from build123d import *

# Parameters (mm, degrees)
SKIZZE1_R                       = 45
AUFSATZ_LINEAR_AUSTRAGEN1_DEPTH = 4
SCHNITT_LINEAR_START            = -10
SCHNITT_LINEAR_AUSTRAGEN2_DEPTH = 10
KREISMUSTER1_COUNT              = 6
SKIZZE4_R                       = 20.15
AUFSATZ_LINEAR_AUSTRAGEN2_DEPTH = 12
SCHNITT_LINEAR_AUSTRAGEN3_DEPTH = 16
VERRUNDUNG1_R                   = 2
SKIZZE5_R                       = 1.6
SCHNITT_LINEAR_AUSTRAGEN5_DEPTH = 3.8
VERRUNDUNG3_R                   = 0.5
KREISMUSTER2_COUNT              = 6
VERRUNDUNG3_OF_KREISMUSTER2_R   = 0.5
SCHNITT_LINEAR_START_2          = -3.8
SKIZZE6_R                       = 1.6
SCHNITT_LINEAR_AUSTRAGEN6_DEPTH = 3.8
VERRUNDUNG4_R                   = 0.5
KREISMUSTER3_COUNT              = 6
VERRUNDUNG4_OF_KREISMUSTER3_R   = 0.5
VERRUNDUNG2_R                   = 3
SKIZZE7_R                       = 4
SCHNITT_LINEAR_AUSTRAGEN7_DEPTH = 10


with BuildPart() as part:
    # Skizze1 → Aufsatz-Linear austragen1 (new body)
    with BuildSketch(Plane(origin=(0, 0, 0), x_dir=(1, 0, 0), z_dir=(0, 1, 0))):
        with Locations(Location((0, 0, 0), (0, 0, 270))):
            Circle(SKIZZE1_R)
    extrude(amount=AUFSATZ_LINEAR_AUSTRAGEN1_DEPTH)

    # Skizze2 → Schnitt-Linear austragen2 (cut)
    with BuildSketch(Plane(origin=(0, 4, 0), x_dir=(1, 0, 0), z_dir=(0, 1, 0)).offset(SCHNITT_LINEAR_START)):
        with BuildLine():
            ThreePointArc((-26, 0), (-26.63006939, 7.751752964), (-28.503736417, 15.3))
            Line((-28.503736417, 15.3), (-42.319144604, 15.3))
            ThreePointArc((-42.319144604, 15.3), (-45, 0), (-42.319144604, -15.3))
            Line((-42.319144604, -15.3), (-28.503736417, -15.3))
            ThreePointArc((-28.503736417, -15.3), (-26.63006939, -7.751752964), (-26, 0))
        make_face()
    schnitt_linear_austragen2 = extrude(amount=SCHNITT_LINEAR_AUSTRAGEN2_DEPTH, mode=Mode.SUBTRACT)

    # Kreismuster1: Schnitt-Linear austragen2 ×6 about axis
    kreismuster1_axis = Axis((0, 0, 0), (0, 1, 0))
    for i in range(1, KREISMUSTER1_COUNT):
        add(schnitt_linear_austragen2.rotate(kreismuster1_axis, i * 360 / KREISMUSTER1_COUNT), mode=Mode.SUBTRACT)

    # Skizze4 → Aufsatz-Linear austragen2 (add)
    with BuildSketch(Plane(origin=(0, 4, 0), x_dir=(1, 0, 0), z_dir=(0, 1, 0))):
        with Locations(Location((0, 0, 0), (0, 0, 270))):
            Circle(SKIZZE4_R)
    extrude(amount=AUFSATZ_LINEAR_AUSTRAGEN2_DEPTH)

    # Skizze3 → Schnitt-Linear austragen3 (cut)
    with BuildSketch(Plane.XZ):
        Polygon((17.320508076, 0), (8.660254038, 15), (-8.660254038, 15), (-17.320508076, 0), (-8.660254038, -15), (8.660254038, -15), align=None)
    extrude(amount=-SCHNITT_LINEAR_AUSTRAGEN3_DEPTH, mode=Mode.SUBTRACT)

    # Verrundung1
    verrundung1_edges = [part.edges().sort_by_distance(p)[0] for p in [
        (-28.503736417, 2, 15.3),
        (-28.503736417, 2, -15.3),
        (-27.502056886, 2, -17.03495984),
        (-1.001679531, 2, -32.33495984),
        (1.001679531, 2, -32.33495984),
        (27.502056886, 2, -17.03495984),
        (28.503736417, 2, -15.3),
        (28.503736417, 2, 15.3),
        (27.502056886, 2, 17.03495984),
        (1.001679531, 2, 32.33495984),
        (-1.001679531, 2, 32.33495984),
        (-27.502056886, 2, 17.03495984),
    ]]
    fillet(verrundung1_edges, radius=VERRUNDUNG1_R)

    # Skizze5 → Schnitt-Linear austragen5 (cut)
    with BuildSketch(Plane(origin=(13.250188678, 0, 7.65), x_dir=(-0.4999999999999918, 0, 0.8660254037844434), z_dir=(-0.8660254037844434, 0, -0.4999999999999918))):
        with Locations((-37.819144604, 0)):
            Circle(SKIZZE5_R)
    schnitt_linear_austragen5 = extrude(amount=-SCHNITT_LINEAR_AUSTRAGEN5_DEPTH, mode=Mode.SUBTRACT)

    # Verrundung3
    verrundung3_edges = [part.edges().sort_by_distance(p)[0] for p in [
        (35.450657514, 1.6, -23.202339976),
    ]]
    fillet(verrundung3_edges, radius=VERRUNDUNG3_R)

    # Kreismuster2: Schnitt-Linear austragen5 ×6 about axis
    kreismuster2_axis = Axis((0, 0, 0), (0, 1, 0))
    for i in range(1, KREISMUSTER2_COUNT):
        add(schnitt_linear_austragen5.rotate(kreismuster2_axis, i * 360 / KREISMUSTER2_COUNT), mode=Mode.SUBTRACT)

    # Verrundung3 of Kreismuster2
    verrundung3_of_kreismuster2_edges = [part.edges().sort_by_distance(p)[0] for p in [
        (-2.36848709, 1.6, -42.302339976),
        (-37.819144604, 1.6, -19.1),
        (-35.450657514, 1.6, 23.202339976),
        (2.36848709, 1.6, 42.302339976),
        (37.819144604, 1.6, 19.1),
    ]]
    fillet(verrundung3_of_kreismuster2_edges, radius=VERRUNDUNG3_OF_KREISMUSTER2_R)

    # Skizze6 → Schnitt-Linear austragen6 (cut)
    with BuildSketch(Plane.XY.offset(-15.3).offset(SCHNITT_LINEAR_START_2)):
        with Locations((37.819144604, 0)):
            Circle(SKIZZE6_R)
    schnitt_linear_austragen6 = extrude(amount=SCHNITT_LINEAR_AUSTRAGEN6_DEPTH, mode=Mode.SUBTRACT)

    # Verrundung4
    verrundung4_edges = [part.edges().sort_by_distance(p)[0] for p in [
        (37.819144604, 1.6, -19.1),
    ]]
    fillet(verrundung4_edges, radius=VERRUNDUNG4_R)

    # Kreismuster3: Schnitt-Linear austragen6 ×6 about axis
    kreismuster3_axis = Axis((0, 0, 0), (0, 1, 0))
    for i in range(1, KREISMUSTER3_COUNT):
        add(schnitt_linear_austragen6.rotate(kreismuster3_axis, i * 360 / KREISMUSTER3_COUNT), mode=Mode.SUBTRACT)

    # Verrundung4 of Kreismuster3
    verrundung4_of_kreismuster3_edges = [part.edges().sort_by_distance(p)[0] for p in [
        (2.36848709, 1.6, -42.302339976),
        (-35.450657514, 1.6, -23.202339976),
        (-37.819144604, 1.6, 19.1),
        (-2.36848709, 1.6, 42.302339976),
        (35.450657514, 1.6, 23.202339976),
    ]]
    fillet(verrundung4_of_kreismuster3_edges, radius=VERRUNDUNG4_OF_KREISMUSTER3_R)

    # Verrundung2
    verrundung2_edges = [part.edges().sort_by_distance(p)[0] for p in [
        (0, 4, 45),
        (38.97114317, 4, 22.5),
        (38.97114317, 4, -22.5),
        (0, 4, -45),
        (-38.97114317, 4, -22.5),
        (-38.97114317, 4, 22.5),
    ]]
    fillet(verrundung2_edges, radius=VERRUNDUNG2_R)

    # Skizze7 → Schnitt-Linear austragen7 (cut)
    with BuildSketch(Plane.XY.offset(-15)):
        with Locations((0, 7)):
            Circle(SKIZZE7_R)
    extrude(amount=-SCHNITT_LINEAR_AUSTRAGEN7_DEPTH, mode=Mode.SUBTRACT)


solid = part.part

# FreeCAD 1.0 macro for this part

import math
import FreeCAD as App
import Part
import Sketcher
Q = App.Units.Quantity


def edges_at(feature, points):
    """Names of the edges that pass closest to the given points."""
    edges = feature.Shape.Edges
    near = lambda p: min(range(len(edges)), key=lambda i: edges[i].distToShape(Part.Vertex(*p))[0])
    return sorted({f"Edge{near(p) + 1}" for p in points})

doc = App.newDocument("Part")
body = doc.addObject("PartDesign::Body", "Body")

# Sketch on XZ plane
sketch1 = body.newObject("Sketcher::SketchObject", "Sketch")
sketch1.AttachmentSupport = (doc.getObject("XZ_Plane"), [""])
sketch1.MapMode = "FlatFace"
sketch1.addGeometry(Part.Circle(App.Vector(0, 0, 0), App.Vector(0, 0, 1), 45), False)
sketch1.addConstraint(Sketcher.Constraint("Coincident", 0, 3, -1, 1))
sketch1.addConstraint(Sketcher.Constraint("Diameter", 0, 90.0))
pad1 = body.newObject("PartDesign::Pad", "Pad")
pad1.Profile = sketch1
pad1.Length = 4
pad1.Reversed = True

# Sketch on XZ plane
sketch2 = body.newObject("Sketcher::SketchObject", "Sketch001")
sketch2.AttachmentSupport = (doc.getObject("XZ_Plane"), [""])
sketch2.MapMode = "FlatFace"
sketch2.AttachmentOffset = App.Placement(App.Vector(0, 0, 6), App.Rotation())
sketch2.addGeometry(Part.ArcOfCircle(Part.Circle(App.Vector(-74, 0, 0), App.Vector(0, 0, 1), 48), math.radians(-18.587347), math.radians(0)), False)
sketch2.addGeometry(Part.LineSegment(App.Vector(-28.503736, -15.3, 0), App.Vector(-42.319145, -15.3, 0)), False)
sketch2.addGeometry(Part.ArcOfCircle(Part.Circle(App.Vector(0, 0, 0), App.Vector(0, 0, 1), 45), math.radians(160.123126), math.radians(199.876874)), False)
sketch2.addGeometry(Part.LineSegment(App.Vector(-42.319145, 15.3, 0), App.Vector(-28.503736, 15.3, 0)), False)
sketch2.addGeometry(Part.ArcOfCircle(Part.Circle(App.Vector(-74, 0, 0), App.Vector(0, 0, 1), 48), math.radians(0), math.radians(18.587347)), False)
sketch2.addConstraint(Sketcher.Constraint("Coincident", 0, 1, 1, 1))
sketch2.addConstraint(Sketcher.Constraint("Coincident", 1, 2, 2, 2))
sketch2.addConstraint(Sketcher.Constraint("Coincident", 2, 1, 3, 1))
sketch2.addConstraint(Sketcher.Constraint("Coincident", 3, 2, 4, 2))
sketch2.addConstraint(Sketcher.Constraint("Tangent", 4, 1, 0, 2))
sketch2.addConstraint(Sketcher.Constraint("Horizontal", 1))
sketch2.addConstraint(Sketcher.Constraint("Horizontal", 3))
sketch2.addConstraint(Sketcher.Constraint("Coincident", 2, 3, -1, 1))
sketch2.addConstraint(Sketcher.Constraint("Equal", 0, 4))
sketch2.addConstraint(Sketcher.Constraint("Symmetric", 0, 1, 3, 2, -1))
sketch2.addConstraint(Sketcher.Constraint("PointOnObject", 4, 1, -1))
sketch2.addConstraint(Sketcher.Constraint("Radius", 0, 48.0))
sketch2.addConstraint(Sketcher.Constraint("Radius", 2, 45.0))
sketch2.addConstraint(Sketcher.Constraint("DistanceX", 0, 3, -1, 1, 74.0))
sketch2.addConstraint(Sketcher.Constraint("DistanceY", 0, 1, -1, 1, 15.3))
pocket1 = body.newObject("PartDesign::Pocket", "Pocket")
pocket1.Profile = sketch2
pocket1.Length = 10
doc.recompute()

polarpattern = body.newObject("PartDesign::PolarPattern", "PolarPattern")
polarpattern.Originals = [pocket1]
polarpattern.Axis = (doc.getObject("Y_Axis"), [""])
polarpattern.Angle = 360
polarpattern.Occurrences = 6
body.Tip = polarpattern

# Sketch on XZ plane
sketch3 = body.newObject("Sketcher::SketchObject", "Sketch002")
sketch3.AttachmentSupport = (doc.getObject("XZ_Plane"), [""])
sketch3.MapMode = "FlatFace"
sketch3.AttachmentOffset = App.Placement(App.Vector(0, 0, -4), App.Rotation())
sketch3.addGeometry(Part.Circle(App.Vector(0, 0, 0), App.Vector(0, 0, 1), 20.15), False)
sketch3.addConstraint(Sketcher.Constraint("Coincident", 0, 3, -1, 1))
sketch3.addConstraint(Sketcher.Constraint("Diameter", 0, 40.3))
pad2 = body.newObject("PartDesign::Pad", "Pad001")
pad2.Profile = sketch3
pad2.Length = 12
pad2.Reversed = True

# Sketch on XZ plane
sketch4 = body.newObject("Sketcher::SketchObject", "Sketch003")
sketch4.AttachmentSupport = (doc.getObject("XZ_Plane"), [""])
sketch4.MapMode = "FlatFace"
sketch4.addGeometry(Part.LineSegment(App.Vector(17.320508, 0, 0), App.Vector(8.660254, 15, 0)), False)
sketch4.addGeometry(Part.LineSegment(App.Vector(8.660254, 15, 0), App.Vector(-8.660254, 15, 0)), False)
sketch4.addGeometry(Part.LineSegment(App.Vector(-8.660254, 15, 0), App.Vector(-17.320508, 0, 0)), False)
sketch4.addGeometry(Part.LineSegment(App.Vector(-17.320508, 0, 0), App.Vector(-8.660254, -15, 0)), False)
sketch4.addGeometry(Part.LineSegment(App.Vector(-8.660254, -15, 0), App.Vector(8.660254, -15, 0)), False)
sketch4.addGeometry(Part.LineSegment(App.Vector(8.660254, -15, 0), App.Vector(17.320508, 0, 0)), False)
sketch4.addConstraint(Sketcher.Constraint("Coincident", 0, 2, 1, 1))
sketch4.addConstraint(Sketcher.Constraint("Coincident", 1, 2, 2, 1))
sketch4.addConstraint(Sketcher.Constraint("Coincident", 2, 2, 3, 1))
sketch4.addConstraint(Sketcher.Constraint("Coincident", 3, 2, 4, 1))
sketch4.addConstraint(Sketcher.Constraint("Coincident", 4, 2, 5, 1))
sketch4.addConstraint(Sketcher.Constraint("Coincident", 5, 2, 0, 1))
sketch4.addConstraint(Sketcher.Constraint("Horizontal", 1))
sketch4.addConstraint(Sketcher.Constraint("Horizontal", 4))
sketch4.addConstraint(Sketcher.Constraint("Symmetric", 0, 2, 3, 2, -1, 1))
sketch4.addConstraint(Sketcher.Constraint("Symmetric", 2, 2, 5, 2, -1, 1))
sketch4.addConstraint(Sketcher.Constraint("PointOnObject", 2, 2, -1))
sketch4.addConstraint(Sketcher.Constraint("Parallel", 2, 5))
sketch4.addConstraint(Sketcher.Constraint("Vertical", 1, 2, 3, 2))
sketch4.addConstraint(Sketcher.Constraint("Angle", 0, Q("120 deg")))
sketch4.addConstraint(Sketcher.Constraint("DistanceY", -1, 1, 0, 2, 15.0))
sketch4.addConstraint(Sketcher.Constraint("DistanceX", 1, 2, 1, 1, 17.320508))
pocket2 = body.newObject("PartDesign::Pocket", "Pocket001")
pocket2.Profile = sketch4
pocket2.Length = 16
doc.recompute()

fillet = body.newObject("PartDesign::Fillet", "Fillet")
fillet.Base = (pocket2, edges_at(pocket2, [
    (-28.504, 2, 15.3),
    (-28.504, 2, -15.3),
    (-27.502, 2, -17.035),
    (-1.002, 2, -32.335),
    (1.002, 2, -32.335),
    (27.502, 2, -17.035),
    (28.504, 2, -15.3),
    (28.504, 2, 15.3),
    (27.502, 2, 17.035),
    (1.002, 2, 32.335),
    (-1.002, 2, 32.335),
    (-27.502, 2, 17.035),
]))
fillet.Radius = 2

# Sketch on an angled plane
sketch5 = body.newObject("Sketcher::SketchObject", "Sketch004")
sketch5.Placement = App.Placement(App.Vector(13.250189, 0, 7.65), App.Rotation(App.Vector(-0.5, 0, 0.866025404), App.Vector(0, 1, 0), App.Vector(-0.866025404, 0, -0.5), "ZXY"))
sketch5.addGeometry(Part.Circle(App.Vector(-37.819145, 0, 0), App.Vector(0, 0, 1), 1.6), False)
sketch5.addConstraint(Sketcher.Constraint("PointOnObject", 0, 3, -1))
sketch5.addConstraint(Sketcher.Constraint("Diameter", 0, 3.2))
sketch5.addConstraint(Sketcher.Constraint("DistanceX", 0, 3, -1, 1, 37.819145))
pocket3 = body.newObject("PartDesign::Pocket", "Pocket002")
pocket3.Profile = sketch5
pocket3.Length = 3.8
doc.recompute()

fillet2 = body.newObject("PartDesign::Fillet", "Fillet001")
fillet2.Base = (pocket3, edges_at(pocket3, [(35.451, 1.6, -23.202)]))
fillet2.Radius = 0.5
doc.recompute()

polarpattern2 = body.newObject("PartDesign::PolarPattern", "PolarPattern001")
polarpattern2.Originals = [pocket3]
polarpattern2.Axis = (doc.getObject("Y_Axis"), [""])
polarpattern2.Angle = 360
polarpattern2.Occurrences = 6
body.Tip = polarpattern2
doc.recompute()

fillet3 = body.newObject("PartDesign::Fillet", "Fillet002")
fillet3.Base = (polarpattern2, edges_at(polarpattern2, [
    (-2.368, 1.6, -42.302),
    (-37.819, 1.6, -19.1),
    (-35.451, 1.6, 23.202),
    (2.368, 1.6, 42.302),
    (37.819, 1.6, 19.1),
]))
fillet3.Radius = 0.5

# Sketch on XY plane
sketch6 = body.newObject("Sketcher::SketchObject", "Sketch005")
sketch6.AttachmentSupport = (doc.getObject("XY_Plane"), [""])
sketch6.MapMode = "FlatFace"
sketch6.AttachmentOffset = App.Placement(App.Vector(0, 0, -19.1), App.Rotation())
sketch6.addGeometry(Part.Circle(App.Vector(37.819145, 0, 0), App.Vector(0, 0, 1), 1.6), False)
sketch6.addConstraint(Sketcher.Constraint("PointOnObject", 0, 3, -1))
sketch6.addConstraint(Sketcher.Constraint("Diameter", 0, 3.2))
sketch6.addConstraint(Sketcher.Constraint("DistanceX", -1, 1, 0, 3, 37.819145))
pocket4 = body.newObject("PartDesign::Pocket", "Pocket003")
pocket4.Profile = sketch6
pocket4.Length = 3.8
pocket4.Reversed = True
doc.recompute()

fillet4 = body.newObject("PartDesign::Fillet", "Fillet003")
fillet4.Base = (pocket4, edges_at(pocket4, [(37.819, 1.6, -19.1)]))
fillet4.Radius = 0.5
doc.recompute()

polarpattern3 = body.newObject("PartDesign::PolarPattern", "PolarPattern002")
polarpattern3.Originals = [pocket4]
polarpattern3.Axis = (doc.getObject("Y_Axis"), [""])
polarpattern3.Angle = 360
polarpattern3.Occurrences = 6
body.Tip = polarpattern3
doc.recompute()

fillet5 = body.newObject("PartDesign::Fillet", "Fillet004")
fillet5.Base = (polarpattern3, edges_at(polarpattern3, [
    (2.368, 1.6, -42.302),
    (-35.451, 1.6, -23.202),
    (-37.819, 1.6, 19.1),
    (-2.368, 1.6, 42.302),
    (35.451, 1.6, 23.202),
]))
fillet5.Radius = 0.5
doc.recompute()

fillet6 = body.newObject("PartDesign::Fillet", "Fillet005")
fillet6.Base = (fillet5, edges_at(fillet5, [
    (0, 4, 45),
    (38.971, 4, 22.5),
    (38.971, 4, -22.5),
    (0, 4, -45),
    (-38.971, 4, -22.5),
    (-38.971, 4, 22.5),
]))
fillet6.Radius = 3

# Sketch on XY plane
sketch7 = body.newObject("Sketcher::SketchObject", "Sketch006")
sketch7.AttachmentSupport = (doc.getObject("XY_Plane"), [""])
sketch7.MapMode = "FlatFace"
sketch7.AttachmentOffset = App.Placement(App.Vector(0, 0, -15), App.Rotation())
sketch7.addGeometry(Part.Circle(App.Vector(0, 7, 0), App.Vector(0, 0, 1), 4), False)
sketch7.addConstraint(Sketcher.Constraint("PointOnObject", 0, 3, -2))
sketch7.addConstraint(Sketcher.Constraint("Diameter", 0, 8.0))
sketch7.addConstraint(Sketcher.Constraint("DistanceY", -1, 1, 0, 3, 7.0))
pocket5 = body.newObject("PartDesign::Pocket", "Pocket004")
pocket5.Profile = sketch7
pocket5.Length = 10

doc.recompute()
